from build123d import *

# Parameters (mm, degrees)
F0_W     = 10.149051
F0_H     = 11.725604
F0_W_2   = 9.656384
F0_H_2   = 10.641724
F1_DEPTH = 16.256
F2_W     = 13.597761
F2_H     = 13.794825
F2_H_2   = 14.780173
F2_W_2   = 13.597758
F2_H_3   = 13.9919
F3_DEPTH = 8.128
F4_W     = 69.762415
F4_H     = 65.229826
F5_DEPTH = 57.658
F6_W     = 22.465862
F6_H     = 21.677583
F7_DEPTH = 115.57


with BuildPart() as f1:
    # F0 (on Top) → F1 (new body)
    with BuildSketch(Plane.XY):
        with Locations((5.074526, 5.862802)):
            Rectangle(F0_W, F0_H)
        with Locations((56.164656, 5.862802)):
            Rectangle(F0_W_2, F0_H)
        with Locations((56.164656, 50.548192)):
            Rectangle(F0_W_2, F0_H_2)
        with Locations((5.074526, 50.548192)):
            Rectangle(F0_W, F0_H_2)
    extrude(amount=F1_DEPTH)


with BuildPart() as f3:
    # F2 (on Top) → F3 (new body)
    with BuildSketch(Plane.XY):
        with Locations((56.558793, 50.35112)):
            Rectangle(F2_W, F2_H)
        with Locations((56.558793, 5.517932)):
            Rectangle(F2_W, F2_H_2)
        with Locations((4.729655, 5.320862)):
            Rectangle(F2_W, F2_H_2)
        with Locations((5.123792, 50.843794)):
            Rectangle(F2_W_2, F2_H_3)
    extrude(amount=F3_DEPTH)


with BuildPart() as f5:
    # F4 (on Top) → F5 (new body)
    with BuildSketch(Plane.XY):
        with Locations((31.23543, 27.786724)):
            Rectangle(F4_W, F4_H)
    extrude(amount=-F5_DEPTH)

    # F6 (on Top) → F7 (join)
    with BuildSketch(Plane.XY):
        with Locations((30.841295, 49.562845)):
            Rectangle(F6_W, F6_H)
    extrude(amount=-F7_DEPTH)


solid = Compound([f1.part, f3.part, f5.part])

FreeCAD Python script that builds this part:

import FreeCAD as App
import Part
import Sketcher
from FreeCAD import Vector
Q = App.Units.Quantity


def add_polygon(sketch, points):
    """Adds a closed chain of lines whose ends are joined by coincident constraints."""
    first, n = sketch.GeometryCount, len(points)
    for a, b in zip(points, points[1:] + points[:1]):
        sketch.addGeometry(Part.LineSegment(App.Vector(*a, 0), App.Vector(*b, 0)), False)
    for i in range(n):
        sketch.addConstraint(Sketcher.Constraint("Coincident", first + i, 2, first + (i + 1) % n, 1))

doc = App.newDocument("Part")
body = doc.addObject("PartDesign::Body", "Body")
body.AllowCompound = True

# Sketch on XY plane
sketch1 = doc.addObject("Sketcher::SketchObject", "Sketch")
body.addObject(sketch1)
sketch1.AttachmentSupport = (doc.XY_Plane, [""])
sketch1.MapMode = "FlatFace"
add_polygon(sketch1, [(0, 12), (0, 0), (10, 0), (10, 12)])  # lines 0-3
add_polygon(sketch1, [(51, 12), (51, 0), (61, 0), (61, 12)])  # lines 4-7
add_polygon(sketch1, [(51, 56), (51, 45), (61, 45), (61, 56)])  # lines 8-11
add_polygon(sketch1, [(0, 56), (0, 45), (10, 45), (10, 56)])  # lines 12-15
sketch1.addConstraint([
    Sketcher.Constraint("Vertical", 0),
    Sketcher.Constraint("Horizontal", 1),
    Sketcher.Constraint("Vertical", 2),
    Sketcher.Constraint("Horizontal", 3),
    Sketcher.Constraint("Vertical", 4),
    Sketcher.Constraint("Horizontal", 5),
    Sketcher.Constraint("Vertical", 6),
    Sketcher.Constraint("Horizontal", 7),
    Sketcher.Constraint("Vertical", 8),
    Sketcher.Constraint("Horizontal", 9),
    Sketcher.Constraint("Vertical", 10),
    Sketcher.Constraint("Horizontal", 11),
    Sketcher.Constraint("Vertical", 12),
    Sketcher.Constraint("Horizontal", 13),
    Sketcher.Constraint("Vertical", 14),
    Sketcher.Constraint("Horizontal", 15),
    Sketcher.Constraint("Coincident", 0, 2, -1, 1),
    Sketcher.Constraint("PointOnObject", 4, 2, -1),
    Sketcher.Constraint("PointOnObject", 12, 2, -2),
    Sketcher.Constraint("Horizontal", 3, 2, 6, 2),
    Sketcher.Constraint("Horizontal", 9, 2, 12, 2),
    Sketcher.Constraint("Horizontal", 11, 2, 14, 2),
    Sketcher.Constraint("Vertical", 7, 2, 8, 2),
    Sketcher.Constraint("Vertical", 6, 2, 9, 2),
    Sketcher.Constraint("Vertical", 2, 2, 13, 2),
    Sketcher.Constraint("DistanceX", 1, 1, 1, 2, 10.149051),
    Sketcher.Constraint("DistanceX", 5, 1, 5, 2, 9.656384),
    Sketcher.Constraint("DistanceY", 0, 2, 0, 1, 11.725604),
    Sketcher.Constraint("DistanceY", 8, 2, 8, 1, 10.641724),
    Sketcher.Constraint("DistanceX", -1, 1, 5, 2, 60.992848),
    Sketcher.Constraint("DistanceY", -1, 1, 8, 2, 45.22733),
])
pad1 = doc.addObject("PartDesign::Pad", "Pad")
body.addObject(pad1)
pad1.Profile = sketch1
pad1.Length = Q("0.64 in")
body2 = doc.addObject("PartDesign::Body", "Body001")
body2.AllowCompound = True

# Sketch on XY plane
sketch2 = doc.addObject("Sketcher::SketchObject", "Sketch001")
body2.addObject(sketch2)
sketch2.AttachmentSupport = (doc.getObject("XY_Plane001"), [""])
sketch2.MapMode = "FlatFace"
add_polygon(sketch2, [(50, 57), (50, 43), (63, 43), (63, 57)])  # lines 0-3
add_polygon(sketch2, [(50, 13), (50, -2), (63, -2), (63, 13)])  # lines 4-7
add_polygon(sketch2, [(-2, 13), (-2, -2), (12, -2), (12, 13)])  # lines 8-11
add_polygon(sketch2, [(-2, 58), (-2, 44), (12, 44), (12, 58)])  # lines 12-15
sketch2.addConstraint([
    Sketcher.Constraint("Vertical", 0),
    Sketcher.Constraint("Horizontal", 1),
    Sketcher.Constraint("Vertical", 2),
    Sketcher.Constraint("Horizontal", 3),
    Sketcher.Constraint("Vertical", 4),
    Sketcher.Constraint("Horizontal", 5),
    Sketcher.Constraint("Vertical", 6),
    Sketcher.Constraint("Horizontal", 7),
    Sketcher.Constraint("Vertical", 8),
    Sketcher.Constraint("Horizontal", 9),
    Sketcher.Constraint("Vertical", 10),
    Sketcher.Constraint("Horizontal", 11),
    Sketcher.Constraint("Vertical", 12),
    Sketcher.Constraint("Horizontal", 13),
    Sketcher.Constraint("Vertical", 14),
    Sketcher.Constraint("Horizontal", 15),
    Sketcher.Constraint("Vertical", 3, 2, 4, 2),
    Sketcher.Constraint("Vertical", 2, 2, 5, 2),
    Sketcher.Constraint("Equal", 7, 9),
    Sketcher.Constraint("Equal", 6, 8),
    Sketcher.Constraint("DistanceX", 12, 2, 0, 2, Q("2.025 in")),
    Sketcher.Constraint("DistanceY", 12, 2, 12, 1, 13.9919),
    Sketcher.Constraint("DistanceX", 1, 1, 1, 2, 13.597761),
    Sketcher.Constraint("DistanceX", 8, 2, 5, 2, 65.426899),
    Sketcher.Constraint("DistanceX", 13, 1, 13, 2, 13.597758),
    Sketcher.Constraint("DistanceY", 0, 2, 0, 1, 13.794825),
    Sketcher.Constraint("DistanceY", 4, 2, 4, 1, 14.780173),
    Sketcher.Constraint("DistanceY", -1, 1, 6, 2, 12.908019),
    Sketcher.Constraint("DistanceY", -1, 1, 10, 2, 12.710949),
    Sketcher.Constraint("DistanceX", -1, 1, 13, 2, 11.922671),
    Sketcher.Constraint("DistanceY", 6, 2, 1, 2, 30.545689),
    Sketcher.Constraint("DistanceY", 8, 2, 12, 2, 45.917068),
])
pad2 = doc.addObject("PartDesign::Pad", "Pad001")
body2.addObject(pad2)
pad2.Profile = sketch2
pad2.Length = Q("0.32 in")
body3 = doc.addObject("PartDesign::Body", "Body002")

# Sketch on XY plane
sketch3 = doc.addObject("Sketcher::SketchObject", "Sketch002")
body3.addObject(sketch3)
sketch3.AttachmentSupport = (doc.getObject("XY_Plane002"), [""])
sketch3.MapMode = "FlatFace"
add_polygon(sketch3, [(-4, 60), (-4, -5), (66, -5), (66, 60)])  # lines 0-3
sketch3.addConstraint([
    Sketcher.Constraint("Vertical", 0),
    Sketcher.Constraint("Horizontal", 1),
    Sketcher.Constraint("Vertical", 2),
    Sketcher.Constraint("Horizontal", 3),
    Sketcher.Constraint("DistanceX", 1, 1, 1, 2, 69.762415),
    Sketcher.Constraint("DistanceY", 0, 2, 0, 1, 65.229826),
    Sketcher.Constraint("DistanceY", 0, 2, -1, 1, 4.828189),
    Sketcher.Constraint("DistanceX", 0, 2, -1, 1, 3.645777),
])
pad3 = doc.addObject("PartDesign::Pad", "Pad002")
body3.addObject(pad3)
pad3.Profile = sketch3
pad3.Length = Q("2.27 in")
pad3.Reversed = True

# Sketch on XY plane
sketch4 = doc.addObject("Sketcher::SketchObject", "Sketch003")
body3.addObject(sketch4)
sketch4.AttachmentSupport = (doc.getObject("XY_Plane002"), [""])
sketch4.MapMode = "FlatFace"
add_polygon(sketch4, [(20, 60), (20, 39), (42, 39), (42, 60)])  # lines 0-3
sketch4.addConstraint([
    Sketcher.Constraint("Vertical", 0),
    Sketcher.Constraint("Horizontal", 1),
    Sketcher.Constraint("Vertical", 2),
    Sketcher.Constraint("Horizontal", 3),
    Sketcher.Constraint("DistanceX", 1, 1, 1, 2, 22.465862),
    Sketcher.Constraint("DistanceY", 0, 2, 0, 1, 21.677583),
    Sketcher.Constraint("DistanceX", -1, 1, 0, 2, 19.608364),
    Sketcher.Constraint("DistanceY", -1, 1, 0, 2, 38.724053),
])
pad4 = doc.addObject("PartDesign::Pad", "Pad003")
body3.addObject(pad4)
pad4.Profile = sketch4
pad4.Length = Q("4.55 in")
pad4.Reversed = True

doc.recompute()
